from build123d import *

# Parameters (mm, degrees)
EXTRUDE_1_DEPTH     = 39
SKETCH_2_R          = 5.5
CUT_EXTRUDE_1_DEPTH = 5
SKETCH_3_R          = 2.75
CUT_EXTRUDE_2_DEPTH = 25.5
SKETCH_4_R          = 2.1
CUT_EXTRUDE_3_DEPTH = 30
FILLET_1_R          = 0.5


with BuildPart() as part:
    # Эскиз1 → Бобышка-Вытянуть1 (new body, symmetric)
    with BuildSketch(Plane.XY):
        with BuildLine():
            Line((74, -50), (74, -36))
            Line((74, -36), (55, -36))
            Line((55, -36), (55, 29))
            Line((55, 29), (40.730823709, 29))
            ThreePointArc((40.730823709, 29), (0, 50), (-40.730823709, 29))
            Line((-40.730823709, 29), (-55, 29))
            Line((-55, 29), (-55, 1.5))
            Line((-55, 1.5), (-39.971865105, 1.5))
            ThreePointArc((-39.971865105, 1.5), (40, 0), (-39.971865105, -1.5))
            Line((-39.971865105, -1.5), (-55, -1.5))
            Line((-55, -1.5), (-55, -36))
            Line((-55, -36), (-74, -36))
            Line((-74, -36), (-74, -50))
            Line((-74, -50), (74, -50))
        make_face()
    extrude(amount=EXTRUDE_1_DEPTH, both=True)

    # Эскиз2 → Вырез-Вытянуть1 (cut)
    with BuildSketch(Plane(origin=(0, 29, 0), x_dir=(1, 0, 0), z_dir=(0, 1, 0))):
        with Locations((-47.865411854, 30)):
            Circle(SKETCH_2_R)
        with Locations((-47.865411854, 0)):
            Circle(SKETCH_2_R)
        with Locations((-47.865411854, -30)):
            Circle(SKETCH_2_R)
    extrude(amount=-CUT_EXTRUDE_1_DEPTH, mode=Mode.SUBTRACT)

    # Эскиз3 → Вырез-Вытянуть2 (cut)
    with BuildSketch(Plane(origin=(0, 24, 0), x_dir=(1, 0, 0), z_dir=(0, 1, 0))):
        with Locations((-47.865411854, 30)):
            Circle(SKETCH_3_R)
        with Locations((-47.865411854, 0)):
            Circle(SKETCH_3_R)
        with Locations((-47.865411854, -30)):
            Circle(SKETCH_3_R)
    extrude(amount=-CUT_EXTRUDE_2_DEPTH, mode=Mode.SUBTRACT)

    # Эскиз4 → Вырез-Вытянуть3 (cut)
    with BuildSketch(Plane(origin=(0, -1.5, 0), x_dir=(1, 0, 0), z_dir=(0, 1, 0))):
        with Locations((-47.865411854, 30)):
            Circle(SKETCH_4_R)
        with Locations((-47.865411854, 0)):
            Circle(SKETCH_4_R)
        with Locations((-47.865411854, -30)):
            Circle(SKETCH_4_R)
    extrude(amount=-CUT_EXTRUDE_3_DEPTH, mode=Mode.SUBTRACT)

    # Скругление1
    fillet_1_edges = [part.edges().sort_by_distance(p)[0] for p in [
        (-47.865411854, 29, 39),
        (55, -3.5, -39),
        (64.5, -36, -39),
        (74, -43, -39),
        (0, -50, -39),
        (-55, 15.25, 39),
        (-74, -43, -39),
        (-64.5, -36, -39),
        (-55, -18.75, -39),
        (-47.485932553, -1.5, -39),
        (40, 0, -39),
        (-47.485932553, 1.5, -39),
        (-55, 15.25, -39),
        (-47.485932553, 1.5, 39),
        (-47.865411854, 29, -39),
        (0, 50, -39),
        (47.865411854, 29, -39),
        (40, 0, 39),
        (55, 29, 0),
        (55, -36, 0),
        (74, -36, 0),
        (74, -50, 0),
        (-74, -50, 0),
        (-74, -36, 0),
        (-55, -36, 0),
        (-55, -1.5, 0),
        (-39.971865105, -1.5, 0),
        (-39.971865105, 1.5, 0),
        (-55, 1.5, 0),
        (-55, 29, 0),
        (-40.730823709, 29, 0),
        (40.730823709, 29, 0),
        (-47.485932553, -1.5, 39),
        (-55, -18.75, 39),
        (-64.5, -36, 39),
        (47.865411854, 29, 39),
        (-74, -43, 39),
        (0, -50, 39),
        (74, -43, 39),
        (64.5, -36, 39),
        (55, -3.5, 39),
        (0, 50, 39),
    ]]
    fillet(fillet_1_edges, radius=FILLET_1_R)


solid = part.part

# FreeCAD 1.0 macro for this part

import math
import FreeCAD as App
import Part
import Sketcher
Q = App.Units.Quantity


def edges_at(feature, points):
    """Names of the edges that pass closest to the given points."""
    edges = feature.Shape.Edges
    near = lambda p: min(range(len(edges)), key=lambda i: edges[i].distToShape(Part.Vertex(*p))[0])
    return sorted({f"Edge{near(p) + 1}" for p in points})

doc = App.newDocument("Part")
body = doc.addObject("PartDesign::Body", "Body")

# Sketch on XY plane
sketch1 = body.newObject("Sketcher::SketchObject", "Sketch")
sketch1.AttachmentSupport = (doc.getObject("XY_Plane"), [""])
sketch1.MapMode = "FlatFace"
sketch1.addGeometry(Part.LineSegment(App.Vector(74, -50, 0), App.Vector(74, -36, 0)), False)
sketch1.addGeometry(Part.LineSegment(App.Vector(74, -36, 0), App.Vector(55, -36, 0)), False)
sketch1.addGeometry(Part.LineSegment(App.Vector(55, -36, 0), App.Vector(55, 29, 0)), False)
sketch1.addGeometry(Part.LineSegment(App.Vector(55, 29, 0), App.Vector(40.7, 29, 0)), False)
sketch1.addGeometry(Part.ArcOfCircle(Part.Circle(App.Vector(0, 0, 0), App.Vector(0, 0, 1), 50), math.radians(35), math.radians(145)), False)
sketch1.addGeometry(Part.LineSegment(App.Vector(-40.7, 29, 0), App.Vector(-55, 29, 0)), False)
sketch1.addGeometry(Part.LineSegment(App.Vector(-55, 29, 0), App.Vector(-55, 1.5, 0)), False)
sketch1.addGeometry(Part.LineSegment(App.Vector(-55, 1.5, 0), App.Vector(-40, 1.5, 0)), False)
sketch1.addGeometry(Part.ArcOfCircle(Part.Circle(App.Vector(0, 0, 0), App.Vector(0, 0, 1), 40), math.radians(-178), math.radians(178)), False)
sketch1.addGeometry(Part.LineSegment(App.Vector(-40, -1.5, 0), App.Vector(-55, -1.5, 0)), False)
sketch1.addGeometry(Part.LineSegment(App.Vector(-55, -1.5, 0), App.Vector(-55, -36, 0)), False)
sketch1.addGeometry(Part.LineSegment(App.Vector(-55, -36, 0), App.Vector(-74, -36, 0)), False)
sketch1.addGeometry(Part.LineSegment(App.Vector(-74, -36, 0), App.Vector(-74, -50, 0)), False)
sketch1.addGeometry(Part.LineSegment(App.Vector(-74, -50, 0), App.Vector(74, -50, 0)), False)
sketch1.addConstraint(Sketcher.Constraint("Coincident", 0, 2, 1, 1))
sketch1.addConstraint(Sketcher.Constraint("Coincident", 1, 2, 2, 1))
sketch1.addConstraint(Sketcher.Constraint("Coincident", 2, 2, 3, 1))
sketch1.addConstraint(Sketcher.Constraint("Coincident", 3, 2, 4, 1))
sketch1.addConstraint(Sketcher.Constraint("Coincident", 4, 2, 5, 1))
sketch1.addConstraint(Sketcher.Constraint("Coincident", 5, 2, 6, 1))
sketch1.addConstraint(Sketcher.Constraint("Coincident", 6, 2, 7, 1))
sketch1.addConstraint(Sketcher.Constraint("Coincident", 7, 2, 8, 2))
sketch1.addConstraint(Sketcher.Constraint("Coincident", 8, 1, 9, 1))
sketch1.addConstraint(Sketcher.Constraint("Coincident", 9, 2, 10, 1))
sketch1.addConstraint(Sketcher.Constraint("Coincident", 10, 2, 11, 1))
sketch1.addConstraint(Sketcher.Constraint("Coincident", 11, 2, 12, 1))
sketch1.addConstraint(Sketcher.Constraint("Coincident", 12, 2, 13, 1))
sketch1.addConstraint(Sketcher.Constraint("Coincident", 13, 2, 0, 1))
sketch1.addConstraint(Sketcher.Constraint("Vertical", 0))
sketch1.addConstraint(Sketcher.Constraint("Horizontal", 1))
sketch1.addConstraint(Sketcher.Constraint("Vertical", 2))
sketch1.addConstraint(Sketcher.Constraint("Horizontal", 3))
sketch1.addConstraint(Sketcher.Constraint("Horizontal", 5))
sketch1.addConstraint(Sketcher.Constraint("Vertical", 6))
sketch1.addConstraint(Sketcher.Constraint("Horizontal", 7))
sketch1.addConstraint(Sketcher.Constraint("Horizontal", 9))
sketch1.addConstraint(Sketcher.Constraint("Vertical", 10))
sketch1.addConstraint(Sketcher.Constraint("Horizontal", 11))
sketch1.addConstraint(Sketcher.Constraint("Vertical", 12))
sketch1.addConstraint(Sketcher.Constraint("Horizontal", 13))
sketch1.addConstraint(Sketcher.Constraint("Coincident", 4, 3, -1, 1))
sketch1.addConstraint(Sketcher.Constraint("Coincident", 8, 3, -1, 1))
sketch1.addConstraint(Sketcher.Constraint("Symmetric", 2, 2, 5, 2, -2))
sketch1.addConstraint(Sketcher.Constraint("Symmetric", 1, 2, 10, 2, -2))
sketch1.addConstraint(Sketcher.Constraint("Vertical", 7, 2, 8, 1))
sketch1.addConstraint(Sketcher.Constraint("Equal", 1, 11))
sketch1.addConstraint(Sketcher.Constraint("Radius", 4, Q("50 mm")))
sketch1.addConstraint(Sketcher.Constraint("Radius", 8, Q("40 mm")))
sketch1.addConstraint(Sketcher.Constraint("DistanceX", 1, 2, 1, 1, Q("19 mm")))
sketch1.addConstraint(Sketcher.Constraint("DistanceX", 13, 1, 13, 2, Q("148 mm")))
sketch1.addConstraint(Sketcher.Constraint("DistanceY", 0, 1, 0, 2, Q("14 mm")))
sketch1.addConstraint(Sketcher.Constraint("DistanceY", 2, 1, 2, 2, Q("65 mm")))
sketch1.addConstraint(Sketcher.Constraint("DistanceY", 6, 2, 6, 1, Q("27.5 mm")))
sketch1.addConstraint(Sketcher.Constraint("DistanceY", 10, 2, 10, 1, Q("34.5 mm")))
pad1 = body.newObject("PartDesign::Pad", "Pad")
pad1.Profile = sketch1
pad1.Length = 78
pad1.Midplane = True

# Sketch on XZ plane
sketch2 = body.newObject("Sketcher::SketchObject", "Sketch001")
sketch2.AttachmentSupport = (doc.getObject("XZ_Plane"), [""])
sketch2.MapMode = "FlatFace"
sketch2.AttachmentOffset = App.Placement(App.Vector(0, 0, -29), App.Rotation())
sketch2.addGeometry(Part.Circle(App.Vector(-48, -30, 0), App.Vector(0, 0, 1), 6), False)
sketch2.addGeometry(Part.Circle(App.Vector(-48, 0, 0), App.Vector(0, 0, 1), 6), False)
sketch2.addGeometry(Part.Circle(App.Vector(-48, 30, 0), App.Vector(0, 0, 1), 6), False)
sketch2.addConstraint(Sketcher.Constraint("Equal", 0, 1))
sketch2.addConstraint(Sketcher.Constraint("Equal", 1, 2))
sketch2.addConstraint(Sketcher.Constraint("Symmetric", 0, 3, 2, 3, -1))
sketch2.addConstraint(Sketcher.Constraint("PointOnObject", 1, 3, -1))
sketch2.addConstraint(Sketcher.Constraint("Vertical", 0, 3, 1, 3))
sketch2.addConstraint(Sketcher.Constraint("Diameter", 0, Q("11 mm")))
sketch2.addConstraint(Sketcher.Constraint("DistanceY", 0, 3, -1, 1, Q("30 mm")))
sketch2.addConstraint(Sketcher.Constraint("DistanceX", 0, 3, -1, 1, Q("47.865412 mm")))
pocket1 = body.newObject("PartDesign::Pocket", "Pocket")
pocket1.Profile = sketch2
pocket1.Length = 5
pocket1.Reversed = True

# Sketch on XZ plane
sketch3 = body.newObject("Sketcher::SketchObject", "Sketch002")
sketch3.AttachmentSupport = (doc.getObject("XZ_Plane"), [""])
sketch3.MapMode = "FlatFace"
sketch3.AttachmentOffset = App.Placement(App.Vector(0, 0, -24), App.Rotation())
sketch3.addGeometry(Part.Circle(App.Vector(-47.9, -30, 0), App.Vector(0, 0, 1), 2.8), False)
sketch3.addGeometry(Part.Circle(App.Vector(-47.9, 0, 0), App.Vector(0, 0, 1), 2.8), False)
sketch3.addGeometry(Part.Circle(App.Vector(-47.9, 30, 0), App.Vector(0, 0, 1), 2.8), False)
sketch3.addConstraint(Sketcher.Constraint("Equal", 0, 1))
sketch3.addConstraint(Sketcher.Constraint("Equal", 1, 2))
sketch3.addConstraint(Sketcher.Constraint("Symmetric", 0, 3, 2, 3, -1))
sketch3.addConstraint(Sketcher.Constraint("PointOnObject", 1, 3, -1))
sketch3.addConstraint(Sketcher.Constraint("Vertical", 0, 3, 1, 3))
sketch3.addConstraint(Sketcher.Constraint("Diameter", 0, Q("5.5 mm")))
sketch3.addConstraint(Sketcher.Constraint("DistanceY", 0, 3, -1, 1, Q("30 mm")))
sketch3.addConstraint(Sketcher.Constraint("DistanceX", 0, 3, -1, 1, Q("47.865412 mm")))
pocket2 = body.newObject("PartDesign::Pocket", "Pocket001")
pocket2.Profile = sketch3
pocket2.Length = 25.5
pocket2.Reversed = True

# Sketch on XZ plane
sketch4 = body.newObject("Sketcher::SketchObject", "Sketch003")
sketch4.AttachmentSupport = (doc.getObject("XZ_Plane"), [""])
sketch4.MapMode = "FlatFace"
sketch4.AttachmentOffset = App.Placement(App.Vector(0, 0, 1.5), App.Rotation())
sketch4.addGeometry(Part.Circle(App.Vector(-47.9, -30, 0), App.Vector(0, 0, 1), 2.1), False)
sketch4.addGeometry(Part.Circle(App.Vector(-47.9, 0, 0), App.Vector(0, 0, 1), 2.1), False)
sketch4.addGeometry(Part.Circle(App.Vector(-47.9, 30, 0), App.Vector(0, 0, 1), 2.1), False)
sketch4.addConstraint(Sketcher.Constraint("Equal", 0, 1))
sketch4.addConstraint(Sketcher.Constraint("Equal", 1, 2))
sketch4.addConstraint(Sketcher.Constraint("Symmetric", 0, 3, 2, 3, -1))
sketch4.addConstraint(Sketcher.Constraint("PointOnObject", 1, 3, -1))
sketch4.addConstraint(Sketcher.Constraint("Vertical", 0, 3, 1, 3))
sketch4.addConstraint(Sketcher.Constraint("Diameter", 0, Q("4.2 mm")))
sketch4.addConstraint(Sketcher.Constraint("DistanceY", 0, 3, -1, 1, Q("30 mm")))
sketch4.addConstraint(Sketcher.Constraint("DistanceX", 0, 3, -1, 1, Q("47.865412 mm")))
pocket3 = body.newObject("PartDesign::Pocket", "Pocket002")
pocket3.Profile = sketch4
pocket3.Length = 30
pocket3.Reversed = True
doc.recompute()

fillet = body.newObject("PartDesign::Fillet", "Fillet")
fillet.Base = (pocket3, edges_at(pocket3, [
    (-47.865, 29, 39),
    (55, -3.5, -39),
    (64.5, -36, -39),
    (74, -43, -39),
    (0, -50, -39),
    (-55, 15.25, 39),
    (-74, -43, -39),
    (-64.5, -36, -39),
    (-55, -18.75, -39),
    (-47.486, -1.5, -39),
    (40, 0, -39),
    (-47.486, 1.5, -39),
    (-55, 15.25, -39),
    (-47.486, 1.5, 39),
    (-47.865, 29, -39),
    (0, 50, -39),
    (47.865, 29, -39),
    (40, 0, 39),
    (55, 29, 0),
    (55, -36, 0),
    (74, -36, 0),
    (74, -50, 0),
    (-74, -50, 0),
    (-74, -36, 0),
    (-55, -36, 0),
    (-55, -1.5, 0),
    (-39.972, -1.5, 0),
    (-39.972, 1.5, 0),
    (-55, 1.5, 0),
    (-55, 29, 0),
    (-40.731, 29, 0),
    (40.731, 29, 0),
    (-47.486, -1.5, 39),
    (-55, -18.75, 39),
    (-64.5, -36, 39),
    (47.865, 29, 39),
    (-74, -43, 39),
    (0, -50, 39),
    (74, -43, 39),
    (64.5, -36, 39),
    (55, -3.5, 39),
    (0, 50, 39),
]))
fillet.Radius = 0.5

doc.recompute()
